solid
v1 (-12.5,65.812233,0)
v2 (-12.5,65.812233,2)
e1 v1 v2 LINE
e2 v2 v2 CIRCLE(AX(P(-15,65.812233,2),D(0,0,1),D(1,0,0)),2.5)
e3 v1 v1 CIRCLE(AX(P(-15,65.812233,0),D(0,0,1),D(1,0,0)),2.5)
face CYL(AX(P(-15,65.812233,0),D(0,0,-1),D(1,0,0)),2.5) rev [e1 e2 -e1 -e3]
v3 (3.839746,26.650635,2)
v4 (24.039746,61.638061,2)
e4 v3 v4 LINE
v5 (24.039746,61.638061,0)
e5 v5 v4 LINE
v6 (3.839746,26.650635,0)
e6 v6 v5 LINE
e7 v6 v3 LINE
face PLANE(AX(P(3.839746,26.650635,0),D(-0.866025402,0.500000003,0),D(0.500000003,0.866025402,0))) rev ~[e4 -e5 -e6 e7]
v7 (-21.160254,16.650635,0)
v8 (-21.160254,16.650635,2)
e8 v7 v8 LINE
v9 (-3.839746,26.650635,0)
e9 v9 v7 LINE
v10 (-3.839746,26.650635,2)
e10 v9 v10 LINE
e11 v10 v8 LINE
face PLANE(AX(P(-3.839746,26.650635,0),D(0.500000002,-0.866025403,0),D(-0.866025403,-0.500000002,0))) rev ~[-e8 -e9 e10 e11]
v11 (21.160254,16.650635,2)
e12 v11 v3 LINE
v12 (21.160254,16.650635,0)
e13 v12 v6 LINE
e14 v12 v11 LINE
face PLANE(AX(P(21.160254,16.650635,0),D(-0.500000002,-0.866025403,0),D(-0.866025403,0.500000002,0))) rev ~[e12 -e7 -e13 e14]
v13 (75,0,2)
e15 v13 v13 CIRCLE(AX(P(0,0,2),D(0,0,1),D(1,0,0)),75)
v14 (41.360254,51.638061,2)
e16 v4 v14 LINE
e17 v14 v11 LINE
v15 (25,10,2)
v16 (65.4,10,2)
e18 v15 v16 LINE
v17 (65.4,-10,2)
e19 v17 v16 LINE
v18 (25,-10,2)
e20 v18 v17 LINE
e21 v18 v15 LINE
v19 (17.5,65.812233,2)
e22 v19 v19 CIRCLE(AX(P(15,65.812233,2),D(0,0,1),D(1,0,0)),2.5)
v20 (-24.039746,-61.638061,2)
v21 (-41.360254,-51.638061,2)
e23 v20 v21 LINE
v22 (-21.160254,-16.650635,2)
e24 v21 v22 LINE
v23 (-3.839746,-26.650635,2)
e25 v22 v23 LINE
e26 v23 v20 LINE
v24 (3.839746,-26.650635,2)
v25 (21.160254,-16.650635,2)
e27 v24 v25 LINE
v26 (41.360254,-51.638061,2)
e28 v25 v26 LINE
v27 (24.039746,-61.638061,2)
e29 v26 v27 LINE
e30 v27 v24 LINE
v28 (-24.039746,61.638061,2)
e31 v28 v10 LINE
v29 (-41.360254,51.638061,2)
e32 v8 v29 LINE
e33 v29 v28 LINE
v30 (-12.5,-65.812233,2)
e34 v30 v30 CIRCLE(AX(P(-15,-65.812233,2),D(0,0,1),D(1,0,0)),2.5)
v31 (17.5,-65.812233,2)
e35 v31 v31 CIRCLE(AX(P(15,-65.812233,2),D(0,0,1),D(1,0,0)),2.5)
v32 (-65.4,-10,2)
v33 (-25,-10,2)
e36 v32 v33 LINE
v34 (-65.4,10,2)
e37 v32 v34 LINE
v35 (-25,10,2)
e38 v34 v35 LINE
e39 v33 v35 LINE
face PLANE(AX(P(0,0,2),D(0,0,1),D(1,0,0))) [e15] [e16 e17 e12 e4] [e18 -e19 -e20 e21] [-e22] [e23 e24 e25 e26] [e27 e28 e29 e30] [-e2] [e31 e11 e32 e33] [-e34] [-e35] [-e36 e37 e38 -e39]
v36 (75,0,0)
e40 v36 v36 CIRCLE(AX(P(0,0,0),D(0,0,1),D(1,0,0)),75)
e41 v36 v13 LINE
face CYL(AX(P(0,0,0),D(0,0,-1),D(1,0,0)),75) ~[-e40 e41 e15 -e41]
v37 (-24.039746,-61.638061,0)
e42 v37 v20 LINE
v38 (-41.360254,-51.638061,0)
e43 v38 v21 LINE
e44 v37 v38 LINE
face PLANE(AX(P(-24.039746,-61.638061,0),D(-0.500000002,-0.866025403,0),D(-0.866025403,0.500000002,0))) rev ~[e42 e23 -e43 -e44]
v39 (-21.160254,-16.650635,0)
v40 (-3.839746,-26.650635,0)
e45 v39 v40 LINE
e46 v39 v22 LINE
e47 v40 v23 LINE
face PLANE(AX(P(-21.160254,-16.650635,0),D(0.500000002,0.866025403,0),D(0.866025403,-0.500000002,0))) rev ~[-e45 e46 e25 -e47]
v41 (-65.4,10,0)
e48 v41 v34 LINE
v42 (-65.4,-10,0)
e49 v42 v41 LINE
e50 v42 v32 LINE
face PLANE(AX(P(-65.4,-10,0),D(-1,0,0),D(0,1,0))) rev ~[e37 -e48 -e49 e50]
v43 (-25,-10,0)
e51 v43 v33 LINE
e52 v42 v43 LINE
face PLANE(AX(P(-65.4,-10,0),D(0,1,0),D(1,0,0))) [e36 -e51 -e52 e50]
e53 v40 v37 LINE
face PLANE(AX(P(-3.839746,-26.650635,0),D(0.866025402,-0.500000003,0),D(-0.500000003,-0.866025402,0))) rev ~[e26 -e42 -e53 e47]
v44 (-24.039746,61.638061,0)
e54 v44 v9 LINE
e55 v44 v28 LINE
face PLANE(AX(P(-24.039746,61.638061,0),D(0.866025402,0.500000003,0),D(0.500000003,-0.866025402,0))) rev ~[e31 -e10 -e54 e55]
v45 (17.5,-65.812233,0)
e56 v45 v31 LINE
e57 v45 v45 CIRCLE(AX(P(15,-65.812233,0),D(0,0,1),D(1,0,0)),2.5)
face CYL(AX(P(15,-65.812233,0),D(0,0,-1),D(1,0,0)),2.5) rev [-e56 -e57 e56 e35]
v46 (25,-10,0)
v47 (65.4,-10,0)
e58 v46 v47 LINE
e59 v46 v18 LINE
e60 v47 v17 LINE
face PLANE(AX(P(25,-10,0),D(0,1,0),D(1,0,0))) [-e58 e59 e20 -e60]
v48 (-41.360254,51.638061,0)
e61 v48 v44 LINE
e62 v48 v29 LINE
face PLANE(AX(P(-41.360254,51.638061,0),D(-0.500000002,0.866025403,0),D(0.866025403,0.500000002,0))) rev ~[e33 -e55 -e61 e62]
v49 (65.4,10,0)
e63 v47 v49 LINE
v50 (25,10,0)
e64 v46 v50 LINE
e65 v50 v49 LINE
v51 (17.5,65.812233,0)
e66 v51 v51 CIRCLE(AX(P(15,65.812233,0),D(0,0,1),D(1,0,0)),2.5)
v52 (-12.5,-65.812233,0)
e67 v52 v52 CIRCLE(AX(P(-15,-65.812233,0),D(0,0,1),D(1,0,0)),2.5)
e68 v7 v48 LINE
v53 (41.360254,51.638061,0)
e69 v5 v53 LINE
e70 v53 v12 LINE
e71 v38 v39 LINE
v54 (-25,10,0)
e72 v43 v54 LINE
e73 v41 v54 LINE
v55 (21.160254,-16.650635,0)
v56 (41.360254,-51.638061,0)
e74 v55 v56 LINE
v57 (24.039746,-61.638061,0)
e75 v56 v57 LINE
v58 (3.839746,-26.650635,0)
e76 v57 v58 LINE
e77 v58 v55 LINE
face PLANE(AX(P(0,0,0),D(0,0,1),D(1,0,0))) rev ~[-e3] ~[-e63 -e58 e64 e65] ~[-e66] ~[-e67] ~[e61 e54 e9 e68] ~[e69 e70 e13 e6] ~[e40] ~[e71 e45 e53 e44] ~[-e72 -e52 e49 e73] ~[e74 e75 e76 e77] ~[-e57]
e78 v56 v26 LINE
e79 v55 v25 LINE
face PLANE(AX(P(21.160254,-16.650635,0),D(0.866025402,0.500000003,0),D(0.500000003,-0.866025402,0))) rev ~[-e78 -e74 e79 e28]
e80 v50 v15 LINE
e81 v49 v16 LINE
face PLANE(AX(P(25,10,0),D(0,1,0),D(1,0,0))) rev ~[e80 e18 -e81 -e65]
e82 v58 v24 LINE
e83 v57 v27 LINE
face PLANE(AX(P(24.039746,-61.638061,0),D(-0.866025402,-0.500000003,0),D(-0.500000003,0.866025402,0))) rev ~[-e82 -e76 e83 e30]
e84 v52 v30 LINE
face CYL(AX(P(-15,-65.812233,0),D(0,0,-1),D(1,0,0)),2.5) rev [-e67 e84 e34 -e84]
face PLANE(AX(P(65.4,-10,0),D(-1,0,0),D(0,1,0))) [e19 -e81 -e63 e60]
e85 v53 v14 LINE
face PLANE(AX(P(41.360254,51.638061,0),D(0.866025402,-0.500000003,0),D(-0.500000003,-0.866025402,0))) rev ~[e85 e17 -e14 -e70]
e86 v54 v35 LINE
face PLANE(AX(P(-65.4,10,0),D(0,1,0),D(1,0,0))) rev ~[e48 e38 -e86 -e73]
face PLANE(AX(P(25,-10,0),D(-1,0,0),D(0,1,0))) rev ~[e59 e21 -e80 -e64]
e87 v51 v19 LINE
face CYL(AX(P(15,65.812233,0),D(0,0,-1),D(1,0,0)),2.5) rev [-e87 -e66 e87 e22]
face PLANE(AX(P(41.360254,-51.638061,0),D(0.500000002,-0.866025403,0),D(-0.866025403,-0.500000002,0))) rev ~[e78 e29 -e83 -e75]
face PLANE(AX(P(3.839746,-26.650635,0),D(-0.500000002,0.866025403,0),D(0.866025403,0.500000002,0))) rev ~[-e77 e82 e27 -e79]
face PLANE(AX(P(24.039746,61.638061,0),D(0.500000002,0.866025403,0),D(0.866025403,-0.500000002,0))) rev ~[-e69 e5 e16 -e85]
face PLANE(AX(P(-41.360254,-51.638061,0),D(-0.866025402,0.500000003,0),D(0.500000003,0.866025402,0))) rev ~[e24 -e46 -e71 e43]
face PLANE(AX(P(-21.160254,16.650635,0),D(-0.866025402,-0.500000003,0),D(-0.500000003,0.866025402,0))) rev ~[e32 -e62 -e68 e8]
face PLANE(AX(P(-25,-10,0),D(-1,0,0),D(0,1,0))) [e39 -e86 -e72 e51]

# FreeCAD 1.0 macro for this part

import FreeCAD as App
import Part
import Sketcher

V = App.Vector
Q = App.Units.Quantity


def add_polygon(sketch, points):
    """Adds a closed chain of lines whose ends are joined by coincident constraints."""
    first, n = sketch.GeometryCount, len(points)
    for a, b in zip(points, points[1:] + points[:1]):
        sketch.addGeometry(Part.LineSegment(App.Vector(*a, 0), App.Vector(*b, 0)), False)
    for i in range(n):
        sketch.addConstraint(Sketcher.Constraint("Coincident", first + i, 2, first + (i + 1) % n, 1))

doc = App.newDocument("Part")
params = doc.addObject("Spreadsheet::Sheet", "Params")
for row, (alias, value) in enumerate([
    ("sketch1_diameter", "150 mm"),
    ("sketch1_diameter2", "5 mm"),
    ("sketch1_height", "20 mm"),
    ("sketch1_length", "20 mm"),
    ("sketch1_width", "40.4 mm"),
    ("pad1_length", "2 mm"),
], start=1):
    params.set(f"A{row}", alias)
    params.set(f"B{row}", "=" + value)
    params.setAlias(f"B{row}", alias)

body = doc.addObject("PartDesign::Body", "Body")

# Sketch on XY plane
sketch1 = body.newObject("Sketcher::SketchObject", "Sketch")
sketch1.AttachmentSupport = (doc.getObject("XY_Plane"), [""])
sketch1.MapMode = "FlatFace"
sketch1.addGeometry(Part.Circle(V(0, 0, 0), V(0, 0, 1), 75), False)  # 0
sketch1.addGeometry(Part.Circle(V(-15, -65.8, 0), V(0, 0, 1), 2.5), False)  # 1
add_polygon(sketch1, [(-24, -61.6), (-41.4, -51.6), (-21.2, -16.7), (-3.8, -26.7)])  # lines 2-5
sketch1.addGeometry(Part.Circle(V(15, -65.8, 0), V(0, 0, 1), 2.5), False)  # 6
add_polygon(sketch1, [(41.4, -51.6), (24, -61.6), (3.8, -26.7), (21.2, -16.7)])  # lines 7-10
add_polygon(sketch1, [(-25, -10), (-65.4, -10), (-65.4, 10), (-25, 10)])  # lines 11-14
add_polygon(sketch1, [(-41.4, 51.6), (-24, 61.6), (-3.8, 26.7), (-21.2, 16.7)])  # lines 15-18
sketch1.addGeometry(Part.Circle(V(-15, 65.8, 0), V(0, 0, 1), 2.5), False)  # 19
add_polygon(sketch1, [(65.4, -10), (25, -10), (25, 10), (65.4, 10)])  # lines 20-23
add_polygon(sketch1, [(24, 61.6), (41.4, 51.6), (21.2, 16.7), (3.8, 26.7)])  # lines 24-27
sketch1.addGeometry(Part.Circle(V(15, 65.8, 0), V(0, 0, 1), 2.5), False)  # 28
sketch1.addConstraint([
    Sketcher.Constraint("Horizontal", 11),
    Sketcher.Constraint("Vertical", 12),
    Sketcher.Constraint("Horizontal", 13),
    Sketcher.Constraint("Vertical", 14),
    Sketcher.Constraint("Horizontal", 20),
    Sketcher.Constraint("Vertical", 21),
    Sketcher.Constraint("Horizontal", 22),
    Sketcher.Constraint("Vertical", 23),
    Sketcher.Constraint("Coincident", 0, 3, -1, 1),
    Sketcher.Constraint("Equal", 1, 6),
    Sketcher.Constraint("Equal", 6, 19),
    Sketcher.Constraint("Equal", 19, 28),
    Sketcher.Constraint("Symmetric", 6, 3, 19, 3, -1, 1),
    Sketcher.Constraint("Symmetric", 1, 3, 28, 3, -1, 1),
    Sketcher.Constraint("Symmetric", 7, 2, 15, 2, -1, 1),
    Sketcher.Constraint("Symmetric", 8, 2, 16, 2, -1, 1),
    Sketcher.Constraint("Symmetric", 9, 2, 17, 2, -1, 1),
    Sketcher.Constraint("Symmetric", 10, 2, 18, 2, -1, 1),
    Sketcher.Constraint("Symmetric", 13, 2, 20, 2, -1, 1),
    Sketcher.Constraint("Symmetric", 11, 2, 22, 2, -1, 1),
    Sketcher.Constraint("Symmetric", 2, 2, 24, 2, -1, 1),
    Sketcher.Constraint("Symmetric", 3, 2, 25, 2, -1, 1),
    Sketcher.Constraint("Symmetric", 4, 2, 26, 2, -1, 1),
    Sketcher.Constraint("Symmetric", 5, 2, 27, 2, -1, 1),
    Sketcher.Constraint("Symmetric", 1, 3, 6, 3, -2),
    Sketcher.Constraint("Symmetric", 5, 2, 7, 2, -2),
    Sketcher.Constraint("Symmetric", 4, 2, 8, 2, -2),
    Sketcher.Constraint("Symmetric", 3, 2, 9, 2, -2),
    Sketcher.Constraint("Symmetric", 2, 2, 10, 2, -2),
    Sketcher.Constraint("Perpendicular", 2, 3),
    Sketcher.Constraint("Perpendicular", 3, 4),
    Sketcher.Constraint("Perpendicular", 4, 5),
    Sketcher.Constraint("Horizontal", 14, 2, 20, 2),
    Sketcher.Constraint("Diameter", 0, 150.0),
    Sketcher.Constraint("Diameter", 1, 5.0),
    Sketcher.Constraint("DistanceY", 12, 1, 12, 2, 20.0),
    Sketcher.Constraint("Angle", 2, Q("150 deg")),
    Sketcher.Constraint("Distance", 2, 20.0),
    Sketcher.Constraint("DistanceX", 11, 2, 11, 1, 40.4),
    Sketcher.Constraint("DistanceX", 1, 3, -1, 1, 15.0),
    Sketcher.Constraint("DistanceX", 13, 2, -1, 1, 25.0),
    Sketcher.Constraint("DistanceX", 3, 2, 8, 2, 25.0),
    Sketcher.Constraint("Distance", 3, 40.4),
    Sketcher.Constraint("DistanceY", 1, 3, 3, 2, 49.161598),
    Sketcher.Constraint("DistanceY", 2, 2, -1, 1, 51.638061),
])
sketch1.setExpression("Constraints[57]", "Params.sketch1_diameter")
sketch1.setExpression("Constraints[58]", "Params.sketch1_diameter2")
sketch1.setExpression("Constraints[59]", "Params.sketch1_height")
sketch1.setExpression("Constraints[61]", "Params.sketch1_length")
sketch1.setExpression("Constraints[62]", "Params.sketch1_width")
pad1 = body.newObject("PartDesign::Pad", "Pad")
pad1.Profile = sketch1
pad1.setExpression("Length", "Params.pad1_length")

doc.recompute()
